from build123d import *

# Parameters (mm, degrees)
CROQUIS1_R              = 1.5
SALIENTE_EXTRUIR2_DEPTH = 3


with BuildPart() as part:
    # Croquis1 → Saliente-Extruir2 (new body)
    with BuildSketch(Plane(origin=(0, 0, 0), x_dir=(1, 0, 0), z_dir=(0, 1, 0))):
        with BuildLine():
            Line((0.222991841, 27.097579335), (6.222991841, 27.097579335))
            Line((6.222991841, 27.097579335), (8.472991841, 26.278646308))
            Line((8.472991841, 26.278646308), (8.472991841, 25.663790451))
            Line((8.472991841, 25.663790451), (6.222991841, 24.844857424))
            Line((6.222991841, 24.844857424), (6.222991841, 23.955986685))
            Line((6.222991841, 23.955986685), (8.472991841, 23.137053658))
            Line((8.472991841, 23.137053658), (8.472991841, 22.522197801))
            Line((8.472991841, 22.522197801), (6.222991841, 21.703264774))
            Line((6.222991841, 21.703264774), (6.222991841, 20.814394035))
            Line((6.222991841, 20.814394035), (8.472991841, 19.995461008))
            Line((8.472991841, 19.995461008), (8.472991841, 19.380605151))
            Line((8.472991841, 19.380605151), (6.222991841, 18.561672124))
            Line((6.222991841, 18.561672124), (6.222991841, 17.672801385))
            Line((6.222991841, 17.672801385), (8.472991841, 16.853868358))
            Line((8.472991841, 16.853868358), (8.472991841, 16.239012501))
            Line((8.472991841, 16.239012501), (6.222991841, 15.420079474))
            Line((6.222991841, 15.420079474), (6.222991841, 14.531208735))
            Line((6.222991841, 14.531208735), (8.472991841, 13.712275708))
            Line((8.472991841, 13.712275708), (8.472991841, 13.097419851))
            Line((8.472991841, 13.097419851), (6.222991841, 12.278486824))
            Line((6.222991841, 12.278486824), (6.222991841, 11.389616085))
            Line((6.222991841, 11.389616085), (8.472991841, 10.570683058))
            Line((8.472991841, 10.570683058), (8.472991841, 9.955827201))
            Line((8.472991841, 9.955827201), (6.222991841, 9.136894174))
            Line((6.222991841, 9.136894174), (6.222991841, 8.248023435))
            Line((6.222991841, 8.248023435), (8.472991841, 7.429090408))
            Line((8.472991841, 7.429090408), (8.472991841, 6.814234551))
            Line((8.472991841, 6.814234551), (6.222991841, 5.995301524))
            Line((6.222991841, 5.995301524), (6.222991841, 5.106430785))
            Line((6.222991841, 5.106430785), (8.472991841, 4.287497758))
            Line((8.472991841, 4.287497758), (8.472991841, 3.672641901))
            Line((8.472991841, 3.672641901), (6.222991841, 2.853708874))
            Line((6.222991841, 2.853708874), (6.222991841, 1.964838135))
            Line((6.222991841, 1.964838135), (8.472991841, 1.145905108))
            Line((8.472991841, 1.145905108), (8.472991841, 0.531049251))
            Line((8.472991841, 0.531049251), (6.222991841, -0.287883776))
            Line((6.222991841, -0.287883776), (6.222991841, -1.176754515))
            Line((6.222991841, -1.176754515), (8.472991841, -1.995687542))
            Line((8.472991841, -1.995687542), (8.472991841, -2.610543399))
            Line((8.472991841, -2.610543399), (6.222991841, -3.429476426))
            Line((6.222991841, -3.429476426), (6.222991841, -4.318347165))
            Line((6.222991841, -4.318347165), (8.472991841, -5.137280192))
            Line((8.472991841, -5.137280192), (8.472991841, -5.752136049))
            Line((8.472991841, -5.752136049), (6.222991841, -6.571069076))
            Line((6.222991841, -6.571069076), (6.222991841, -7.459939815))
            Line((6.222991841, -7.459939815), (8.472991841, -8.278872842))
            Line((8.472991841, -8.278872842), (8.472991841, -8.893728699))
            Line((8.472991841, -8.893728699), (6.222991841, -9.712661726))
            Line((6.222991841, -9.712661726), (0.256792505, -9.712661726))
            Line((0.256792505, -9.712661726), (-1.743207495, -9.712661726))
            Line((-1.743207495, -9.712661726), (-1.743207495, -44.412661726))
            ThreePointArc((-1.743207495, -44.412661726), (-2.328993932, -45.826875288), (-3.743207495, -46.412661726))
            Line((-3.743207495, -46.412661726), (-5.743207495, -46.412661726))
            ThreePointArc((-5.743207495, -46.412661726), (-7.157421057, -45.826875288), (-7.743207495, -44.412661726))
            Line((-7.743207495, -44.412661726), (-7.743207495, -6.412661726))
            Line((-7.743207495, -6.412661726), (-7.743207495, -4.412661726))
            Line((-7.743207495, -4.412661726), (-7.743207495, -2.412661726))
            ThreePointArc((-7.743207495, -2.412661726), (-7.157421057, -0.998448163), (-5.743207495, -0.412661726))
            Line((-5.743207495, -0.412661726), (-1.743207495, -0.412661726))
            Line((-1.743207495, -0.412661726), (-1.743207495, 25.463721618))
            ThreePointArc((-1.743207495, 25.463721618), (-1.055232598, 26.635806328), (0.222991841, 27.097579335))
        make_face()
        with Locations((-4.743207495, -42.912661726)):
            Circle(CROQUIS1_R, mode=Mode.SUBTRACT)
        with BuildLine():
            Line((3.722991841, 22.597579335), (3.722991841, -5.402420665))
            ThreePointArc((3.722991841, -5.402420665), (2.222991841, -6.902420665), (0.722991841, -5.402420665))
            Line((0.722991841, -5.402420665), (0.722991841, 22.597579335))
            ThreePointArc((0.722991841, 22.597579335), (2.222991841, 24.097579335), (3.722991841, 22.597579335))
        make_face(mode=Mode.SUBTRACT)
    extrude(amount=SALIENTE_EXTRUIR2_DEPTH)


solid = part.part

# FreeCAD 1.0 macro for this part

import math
import FreeCAD as App
import Part
import Sketcher

V = App.Vector
Q = App.Units.Quantity

doc = App.newDocument("Part")
params = doc.addObject("Spreadsheet::Sheet", "Params")
for row, (alias, value) in enumerate([
    ("sketch1_diameter", "3 mm"),
    ("sketch1_radius", "2 mm"),
    ("sketch1_width", "6 mm"),
    ("sketch1_width2", "4 mm"),
    ("sketch1_height", "42 mm"),
    ("pad1_length", "3 mm"),
], start=1):
    params.set(f"A{row}", alias)
    params.set(f"B{row}", "=" + value)
    params.setAlias(f"B{row}", alias)

body = doc.addObject("PartDesign::Body", "Body")

sketch1 = body.newObject("Sketcher::SketchObject", "Sketch")
sketch1.AttachmentSupport = (doc.getObject("XZ_Plane"), [""])
sketch1.MapMode = "FlatFace"
sketch1.addGeometry([
    Part.LineSegment(V(6.2, -27.1, 0), V(0.2, -27.1, 0)),
    Part.ArcOfCircle(Part.Circle(V(0.2, -25.1, 0), V(0, 0, 1), 2), math.radians(-169), math.radians(-90)),
    Part.LineSegment(V(-1.7, -25.5, 0), V(-1.7, 0.4, 0)),
    Part.LineSegment(V(-1.7, 0.4, 0), V(-5.7, 0.4, 0)),
    Part.ArcOfCircle(Part.Circle(V(-5.7, 2.4, 0), V(0, 0, 1), 2), math.radians(180), math.radians(270)),
    Part.LineSegment(V(-7.7, 2.4, 0), V(-7.7, 44.4, 0)),
    Part.ArcOfCircle(Part.Circle(V(-5.7, 44.4, 0), V(0, 0, 1), 2), math.radians(90), math.radians(180)),
    Part.LineSegment(V(-5.7, 46.4, 0), V(-3.7, 46.4, 0)),
    Part.ArcOfCircle(Part.Circle(V(-3.7, 44.4, 0), V(0, 0, 1), 2), math.radians(0), math.radians(90)),
    Part.LineSegment(V(-1.7, 44.4, 0), V(-1.7, 9.7, 0)),
    Part.LineSegment(V(-1.7, 9.7, 0), V(6.2, 9.7, 0)),
    Part.LineSegment(V(6.2, 9.7, 0), V(8.5, 8.9, 0)),
    Part.LineSegment(V(8.5, 8.9, 0), V(8.5, 8.3, 0)),
    Part.LineSegment(V(8.5, 8.3, 0), V(6.2, 7.5, 0)),
    Part.LineSegment(V(6.2, 7.5, 0), V(6.2, 6.6, 0)),
    Part.LineSegment(V(6.2, 6.6, 0), V(8.5, 5.8, 0)),
    Part.LineSegment(V(8.5, 5.8, 0), V(8.5, 5.1, 0)),
    Part.LineSegment(V(8.5, 5.1, 0), V(6.2, 4.3, 0)),
    Part.LineSegment(V(6.2, 4.3, 0), V(6.2, 3.4, 0)),
    Part.LineSegment(V(6.2, 3.4, 0), V(8.5, 2.6, 0)),
    Part.LineSegment(V(8.5, 2.6, 0), V(8.5, 2, 0)),
    Part.LineSegment(V(8.5, 2, 0), V(6.2, 1.2, 0)),
    Part.LineSegment(V(6.2, 1.2, 0), V(6.2, 0.3, 0)),
    Part.LineSegment(V(6.2, 0.3, 0), V(8.5, -0.5, 0)),
    Part.LineSegment(V(8.5, -0.5, 0), V(8.5, -1.1, 0)),
    Part.LineSegment(V(8.5, -1.1, 0), V(6.2, -2, 0)),
    Part.LineSegment(V(6.2, -2, 0), V(6.2, -2.9, 0)),
    Part.LineSegment(V(6.2, -2.9, 0), V(8.5, -3.7, 0)),
    Part.LineSegment(V(8.5, -3.7, 0), V(8.5, -4.3, 0)),
    Part.LineSegment(V(8.5, -4.3, 0), V(6.2, -5.1, 0)),
    Part.LineSegment(V(6.2, -5.1, 0), V(6.2, -6, 0)),
    Part.LineSegment(V(6.2, -6, 0), V(8.5, -6.8, 0)),
    Part.LineSegment(V(8.5, -6.8, 0), V(8.5, -7.4, 0)),
    Part.LineSegment(V(8.5, -7.4, 0), V(6.2, -8.2, 0)),
    Part.LineSegment(V(6.2, -8.2, 0), V(6.2, -9.1, 0)),
    Part.LineSegment(V(6.2, -9.1, 0), V(8.5, -10, 0)),
    Part.LineSegment(V(8.5, -10, 0), V(8.5, -10.6, 0)),
    Part.LineSegment(V(8.5, -10.6, 0), V(6.2, -11.4, 0)),
    Part.LineSegment(V(6.2, -11.4, 0), V(6.2, -12.3, 0)),
    Part.LineSegment(V(6.2, -12.3, 0), V(8.5, -13.1, 0)),
    Part.LineSegment(V(8.5, -13.1, 0), V(8.5, -13.7, 0)),
    Part.LineSegment(V(8.5, -13.7, 0), V(6.2, -14.5, 0)),
    Part.LineSegment(V(6.2, -14.5, 0), V(6.2, -15.4, 0)),
    Part.LineSegment(V(6.2, -15.4, 0), V(8.5, -16.2, 0)),
    Part.LineSegment(V(8.5, -16.2, 0), V(8.5, -16.9, 0)),
    Part.LineSegment(V(8.5, -16.9, 0), V(6.2, -17.7, 0)),
    Part.LineSegment(V(6.2, -17.7, 0), V(6.2, -18.6, 0)),
    Part.LineSegment(V(6.2, -18.6, 0), V(8.5, -19.4, 0)),
    Part.LineSegment(V(8.5, -19.4, 0), V(8.5, -20, 0)),
    Part.LineSegment(V(8.5, -20, 0), V(6.2, -20.8, 0)),
    Part.LineSegment(V(6.2, -20.8, 0), V(6.2, -21.7, 0)),
    Part.LineSegment(V(6.2, -21.7, 0), V(8.5, -22.5, 0)),
    Part.LineSegment(V(8.5, -22.5, 0), V(8.5, -23.1, 0)),
    Part.LineSegment(V(8.5, -23.1, 0), V(6.2, -24, 0)),
    Part.LineSegment(V(6.2, -24, 0), V(6.2, -24.8, 0)),
    Part.LineSegment(V(6.2, -24.8, 0), V(8.5, -25.7, 0)),
    Part.LineSegment(V(8.5, -25.7, 0), V(8.5, -26.3, 0)),
    Part.LineSegment(V(8.5, -26.3, 0), V(6.2, -27.1, 0)),
    Part.Circle(V(-4.7, 42.9, 0), V(0, 0, 1), 1.5),
    Part.LineSegment(V(3.7, -22.6, 0), V(3.7, 5.4, 0)),
    Part.ArcOfCircle(Part.Circle(V(2.2, 5.4, 0), V(0, 0, 1), 1.5), math.radians(0), math.radians(180)),
    Part.LineSegment(V(0.7, 5.4, 0), V(0.7, -22.6, 0)),
    Part.ArcOfCircle(Part.Circle(V(2.2, -22.6, 0), V(0, 0, 1), 1.5), math.radians(180), math.radians(360)),
], False)
sketch1.addConstraint([
    Sketcher.Constraint("Tangent", 0, 2, 1, 2),
    Sketcher.Constraint("Coincident", 1, 1, 2, 1),
    Sketcher.Constraint("Coincident", 2, 2, 3, 1),
    Sketcher.Constraint("Tangent", 3, 2, 4, 2),
    Sketcher.Constraint("Tangent", 4, 1, 5, 1),
    Sketcher.Constraint("Tangent", 5, 2, 6, 2),
    Sketcher.Constraint("Tangent", 6, 1, 7, 1),
    Sketcher.Constraint("Tangent", 7, 2, 8, 2),
    Sketcher.Constraint("Tangent", 8, 1, 9, 1),
    Sketcher.Constraint("Coincident", 9, 2, 10, 1),
    Sketcher.Constraint("Coincident", 10, 2, 11, 1),
    Sketcher.Constraint("Coincident", 11, 2, 12, 1),
    Sketcher.Constraint("Coincident", 12, 2, 13, 1),
    Sketcher.Constraint("Coincident", 13, 2, 14, 1),
    Sketcher.Constraint("Coincident", 14, 2, 15, 1),
    Sketcher.Constraint("Coincident", 15, 2, 16, 1),
    Sketcher.Constraint("Coincident", 16, 2, 17, 1),
    Sketcher.Constraint("Coincident", 17, 2, 18, 1),
    Sketcher.Constraint("Coincident", 18, 2, 19, 1),
    Sketcher.Constraint("Coincident", 19, 2, 20, 1),
    Sketcher.Constraint("Coincident", 20, 2, 21, 1),
    Sketcher.Constraint("Coincident", 21, 2, 22, 1),
    Sketcher.Constraint("Coincident", 22, 2, 23, 1),
    Sketcher.Constraint("Coincident", 23, 2, 24, 1),
    Sketcher.Constraint("Coincident", 24, 2, 25, 1),
    Sketcher.Constraint("Coincident", 25, 2, 26, 1),
    Sketcher.Constraint("Coincident", 26, 2, 27, 1),
    Sketcher.Constraint("Coincident", 27, 2, 28, 1),
    Sketcher.Constraint("Coincident", 28, 2, 29, 1),
    Sketcher.Constraint("Coincident", 29, 2, 30, 1),
    Sketcher.Constraint("Coincident", 30, 2, 31, 1),
    Sketcher.Constraint("Coincident", 31, 2, 32, 1),
    Sketcher.Constraint("Coincident", 32, 2, 33, 1),
    Sketcher.Constraint("Coincident", 33, 2, 34, 1),
    Sketcher.Constraint("Coincident", 34, 2, 35, 1),
    Sketcher.Constraint("Coincident", 35, 2, 36, 1),
    Sketcher.Constraint("Coincident", 36, 2, 37, 1),
    Sketcher.Constraint("Coincident", 37, 2, 38, 1),
    Sketcher.Constraint("Coincident", 38, 2, 39, 1),
    Sketcher.Constraint("Coincident", 39, 2, 40, 1),
    Sketcher.Constraint("Coincident", 40, 2, 41, 1),
    Sketcher.Constraint("Coincident", 41, 2, 42, 1),
    Sketcher.Constraint("Coincident", 42, 2, 43, 1),
    Sketcher.Constraint("Coincident", 43, 2, 44, 1),
    Sketcher.Constraint("Coincident", 44, 2, 45, 1),
    Sketcher.Constraint("Coincident", 45, 2, 46, 1),
    Sketcher.Constraint("Coincident", 46, 2, 47, 1),
    Sketcher.Constraint("Coincident", 47, 2, 48, 1),
    Sketcher.Constraint("Coincident", 48, 2, 49, 1),
    Sketcher.Constraint("Coincident", 49, 2, 50, 1),
    Sketcher.Constraint("Coincident", 50, 2, 51, 1),
    Sketcher.Constraint("Coincident", 51, 2, 52, 1),
    Sketcher.Constraint("Coincident", 52, 2, 53, 1),
    Sketcher.Constraint("Coincident", 53, 2, 54, 1),
    Sketcher.Constraint("Coincident", 54, 2, 55, 1),
    Sketcher.Constraint("Coincident", 55, 2, 56, 1),
    Sketcher.Constraint("Coincident", 56, 2, 57, 1),
    Sketcher.Constraint("Coincident", 57, 2, 0, 1),
    Sketcher.Constraint("Tangent", 59, 2, 60, 1),
    Sketcher.Constraint("Tangent", 60, 2, 61, 1),
    Sketcher.Constraint("Tangent", 61, 2, 62, 1),
    Sketcher.Constraint("Tangent", 62, 2, 59, 1),
    Sketcher.Constraint("Horizontal", 0),
    Sketcher.Constraint("Vertical", 2),
    Sketcher.Constraint("Horizontal", 3),
    Sketcher.Constraint("Vertical", 5),
    Sketcher.Constraint("Horizontal", 7),
    Sketcher.Constraint("Vertical", 9),
    Sketcher.Constraint("Horizontal", 10),
    Sketcher.Constraint("Vertical", 12),
    Sketcher.Constraint("Vertical", 14),
    Sketcher.Constraint("Vertical", 16),
    Sketcher.Constraint("Vertical", 18),
    Sketcher.Constraint("Vertical", 20),
    Sketcher.Constraint("Vertical", 22),
    Sketcher.Constraint("Vertical", 24),
    Sketcher.Constraint("Vertical", 26),
    Sketcher.Constraint("Vertical", 28),
    Sketcher.Constraint("Vertical", 30),
    Sketcher.Constraint("Vertical", 32),
    Sketcher.Constraint("Vertical", 34),
    Sketcher.Constraint("Vertical", 36),
    Sketcher.Constraint("Vertical", 38),
    Sketcher.Constraint("Vertical", 40),
    Sketcher.Constraint("Vertical", 42),
    Sketcher.Constraint("Vertical", 44),
    Sketcher.Constraint("Vertical", 46),
    Sketcher.Constraint("Vertical", 48),
    Sketcher.Constraint("Vertical", 50),
    Sketcher.Constraint("Vertical", 52),
    Sketcher.Constraint("Vertical", 54),
    Sketcher.Constraint("Vertical", 56),
    Sketcher.Constraint("Vertical", 59),
    Sketcher.Constraint("Vertical", 61),
    Sketcher.Constraint("Equal", 1, 4),
    Sketcher.Constraint("Equal", 4, 6),
    Sketcher.Constraint("Equal", 6, 8),
    Sketcher.Constraint("Equal", 58, 60),
    Sketcher.Constraint("Parallel", 11, 15),
    Sketcher.Constraint("Parallel", 13, 17),
    Sketcher.Constraint("Parallel", 15, 19),
    Sketcher.Constraint("Parallel", 17, 21),
    Sketcher.Constraint("Parallel", 19, 23),
    Sketcher.Constraint("Parallel", 21, 25),
    Sketcher.Constraint("Parallel", 23, 27),
    Sketcher.Constraint("Parallel", 25, 29),
    Sketcher.Constraint("Parallel", 27, 31),
    Sketcher.Constraint("Parallel", 29, 33),
    Sketcher.Constraint("Parallel", 31, 35),
    Sketcher.Constraint("Parallel", 33, 37),
    Sketcher.Constraint("Parallel", 35, 39),
    Sketcher.Constraint("Parallel", 37, 41),
    Sketcher.Constraint("Parallel", 39, 43),
    Sketcher.Constraint("Parallel", 41, 45),
    Sketcher.Constraint("Parallel", 43, 47),
    Sketcher.Constraint("Parallel", 45, 49),
    Sketcher.Constraint("Parallel", 47, 51),
    Sketcher.Constraint("Parallel", 49, 53),
    Sketcher.Constraint("Parallel", 51, 55),
    Sketcher.Constraint("Parallel", 53, 57),
    Sketcher.Constraint("Vertical", 2, 2, 8, 1),
    Sketcher.Constraint("Vertical", 10, 2, 13, 2),
    Sketcher.Constraint("Vertical", 12, 2, 15, 2),
    Sketcher.Constraint("Vertical", 14, 2, 17, 2),
    Sketcher.Constraint("Vertical", 16, 2, 19, 2),
    Sketcher.Constraint("Vertical", 18, 2, 21, 2),
    Sketcher.Constraint("Vertical", 20, 2, 23, 2),
    Sketcher.Constraint("Vertical", 22, 2, 25, 2),
    Sketcher.Constraint("Vertical", 24, 2, 27, 2),
    Sketcher.Constraint("Vertical", 26, 2, 29, 2),
    Sketcher.Constraint("Vertical", 28, 2, 31, 2),
    Sketcher.Constraint("Vertical", 30, 2, 33, 2),
    Sketcher.Constraint("Vertical", 32, 2, 35, 2),
    Sketcher.Constraint("Vertical", 34, 2, 37, 2),
    Sketcher.Constraint("Vertical", 36, 2, 39, 2),
    Sketcher.Constraint("Vertical", 38, 2, 41, 2),
    Sketcher.Constraint("Vertical", 40, 2, 43, 2),
    Sketcher.Constraint("Vertical", 42, 2, 45, 2),
    Sketcher.Constraint("Vertical", 44, 2, 47, 2),
    Sketcher.Constraint("Vertical", 46, 2, 49, 2),
    Sketcher.Constraint("Vertical", 48, 2, 51, 2),
    Sketcher.Constraint("Vertical", 50, 2, 53, 2),
    Sketcher.Constraint("Vertical", 52, 2, 55, 2),
    Sketcher.Constraint("Vertical", 54, 2, 57, 2),
    Sketcher.Constraint("Equal", 12, 16),
    Sketcher.Constraint("Equal", 14, 18),
    Sketcher.Constraint("Equal", 16, 20),
    Sketcher.Constraint("Equal", 18, 22),
    Sketcher.Constraint("Equal", 20, 24),
    Sketcher.Constraint("Equal", 22, 26),
    Sketcher.Constraint("Equal", 24, 28),
    Sketcher.Constraint("Equal", 26, 30),
    Sketcher.Constraint("Equal", 28, 32),
    Sketcher.Constraint("Equal", 30, 34),
    Sketcher.Constraint("Equal", 32, 36),
    Sketcher.Constraint("Equal", 34, 38),
    Sketcher.Constraint("Equal", 36, 40),
    Sketcher.Constraint("Equal", 38, 42),
    Sketcher.Constraint("Equal", 40, 44),
    Sketcher.Constraint("Equal", 42, 46),
    Sketcher.Constraint("Equal", 44, 48),
    Sketcher.Constraint("Equal", 46, 50),
    Sketcher.Constraint("Equal", 48, 52),
    Sketcher.Constraint("Equal", 50, 54),
    Sketcher.Constraint("Equal", 52, 56),
    Sketcher.Constraint("Equal", 11, 13),
    Sketcher.Constraint("Diameter", 58, Q("3 mm")),
    Sketcher.Constraint("Radius", 1, Q("2 mm")),
    Sketcher.Constraint("DistanceX", 0, 2, 0, 1, Q("6 mm")),
    Sketcher.Constraint("DistanceX", 3, 2, 3, 1, Q("4 mm")),
    Sketcher.Constraint("DistanceY", 5, 1, 5, 2, Q("42 mm")),
    Sketcher.Constraint("DistanceY", 59, 1, 59, 2, Q("28 mm")),
    Sketcher.Constraint("Angle", 11, Q("-20 deg")),
    Sketcher.Constraint("DistanceY", 9, 2, 9, 1, Q("34.7 mm")),
    Sketcher.Constraint("DistanceX", 10, 1, 10, 2, Q("7.966199 mm")),
    Sketcher.Constraint("Distance", 11, Q("2.3944 mm")),
    Sketcher.Constraint("DistanceY", 14, 2, 14, 1, Q("0.888871 mm")),
    Sketcher.Constraint("DistanceY", 30, 2, -1, 1, Q("5.995302 mm")),
    Sketcher.Constraint("DistanceY", 45, 2, -1, 1, Q("17.672801 mm")),
    Sketcher.Constraint("DistanceX", -1, 1, 1, 3, Q("0.222992 mm")),
    Sketcher.Constraint("DistanceY", -1, 1, 58, 3, Q("42.912662 mm")),
    Sketcher.Constraint("DistanceX", -1, 1, 60, 3, Q("2.222992 mm")),
    Sketcher.Constraint("DistanceY", -1, 1, 60, 3, Q("5.402421 mm")),
    Sketcher.Constraint("DistanceX", 58, 3, -1, 1, Q("4.743207 mm")),
])
sketch1.setExpression("Constraints[166]", "Params.sketch1_diameter")
sketch1.setExpression("Constraints[167]", "Params.sketch1_radius")
sketch1.setExpression("Constraints[168]", "Params.sketch1_width")
sketch1.setExpression("Constraints[169]", "Params.sketch1_width2")
sketch1.setExpression("Constraints[170]", "Params.sketch1_height")
pad1 = body.newObject("PartDesign::Pad", "Pad")
pad1.Profile = sketch1
pad1.setExpression("Length", "Params.pad1_length")
pad1.Reversed = True

doc.recompute()
